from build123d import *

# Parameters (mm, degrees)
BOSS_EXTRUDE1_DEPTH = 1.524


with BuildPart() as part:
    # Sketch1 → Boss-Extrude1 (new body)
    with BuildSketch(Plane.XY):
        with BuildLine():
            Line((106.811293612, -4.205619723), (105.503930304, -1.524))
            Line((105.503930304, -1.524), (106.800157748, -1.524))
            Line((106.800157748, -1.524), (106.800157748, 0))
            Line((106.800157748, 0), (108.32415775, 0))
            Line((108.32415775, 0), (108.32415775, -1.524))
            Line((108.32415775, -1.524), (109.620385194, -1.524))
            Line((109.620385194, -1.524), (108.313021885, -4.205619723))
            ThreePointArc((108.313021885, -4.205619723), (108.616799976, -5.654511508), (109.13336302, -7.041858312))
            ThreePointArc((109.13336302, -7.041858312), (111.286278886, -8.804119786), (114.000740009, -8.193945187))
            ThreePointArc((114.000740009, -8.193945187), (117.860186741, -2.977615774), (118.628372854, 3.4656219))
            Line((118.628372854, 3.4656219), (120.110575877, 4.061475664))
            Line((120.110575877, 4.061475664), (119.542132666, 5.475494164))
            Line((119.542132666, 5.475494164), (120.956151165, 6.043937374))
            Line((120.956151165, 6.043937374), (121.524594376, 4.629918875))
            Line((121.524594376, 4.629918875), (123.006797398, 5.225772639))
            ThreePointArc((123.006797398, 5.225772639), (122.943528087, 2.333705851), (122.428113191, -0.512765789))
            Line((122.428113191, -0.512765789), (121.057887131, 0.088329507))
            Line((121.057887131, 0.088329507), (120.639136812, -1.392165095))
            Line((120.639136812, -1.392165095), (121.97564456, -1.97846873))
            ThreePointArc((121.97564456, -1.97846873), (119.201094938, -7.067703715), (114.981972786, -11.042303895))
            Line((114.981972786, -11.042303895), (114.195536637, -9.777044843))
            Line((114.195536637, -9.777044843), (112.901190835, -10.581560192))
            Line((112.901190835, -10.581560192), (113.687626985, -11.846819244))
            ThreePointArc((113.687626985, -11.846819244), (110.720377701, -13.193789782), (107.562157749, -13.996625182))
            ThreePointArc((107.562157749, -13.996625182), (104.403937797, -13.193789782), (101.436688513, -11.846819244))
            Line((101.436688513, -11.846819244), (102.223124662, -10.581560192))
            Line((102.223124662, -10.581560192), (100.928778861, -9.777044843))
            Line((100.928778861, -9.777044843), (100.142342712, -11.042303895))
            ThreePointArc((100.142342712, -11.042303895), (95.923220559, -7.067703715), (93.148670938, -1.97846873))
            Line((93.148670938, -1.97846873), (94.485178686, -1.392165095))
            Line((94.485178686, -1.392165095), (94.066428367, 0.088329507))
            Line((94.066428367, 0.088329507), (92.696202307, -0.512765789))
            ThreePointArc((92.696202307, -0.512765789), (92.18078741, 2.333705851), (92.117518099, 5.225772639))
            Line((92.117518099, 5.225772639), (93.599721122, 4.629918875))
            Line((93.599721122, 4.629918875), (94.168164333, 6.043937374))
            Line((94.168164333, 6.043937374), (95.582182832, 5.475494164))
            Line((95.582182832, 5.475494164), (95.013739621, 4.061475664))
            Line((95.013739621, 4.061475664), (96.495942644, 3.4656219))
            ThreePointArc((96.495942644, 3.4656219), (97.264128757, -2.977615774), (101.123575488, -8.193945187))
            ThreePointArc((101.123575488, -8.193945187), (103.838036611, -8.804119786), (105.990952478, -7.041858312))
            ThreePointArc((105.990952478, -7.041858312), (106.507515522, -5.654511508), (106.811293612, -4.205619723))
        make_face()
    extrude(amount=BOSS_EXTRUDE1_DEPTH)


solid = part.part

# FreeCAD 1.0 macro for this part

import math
import FreeCAD as App
import Part
import Sketcher

V = App.Vector
Q = App.Units.Quantity

doc = App.newDocument("Part")
body = doc.addObject("PartDesign::Body", "Body")

# Sketch on XY plane
sketch1 = body.newObject("Sketcher::SketchObject", "Sketch")
sketch1.AttachmentSupport = (doc.getObject("XY_Plane"), [""])
sketch1.MapMode = "FlatFace"
sketch1.addGeometry(Part.LineSegment(V(105.5, -1.5, 0), V(106.8, -4.2, 0)), False)
sketch1.addGeometry(Part.ArcOfCircle(Part.Circle(V(97, -2.9, 0), V(0, 0, 1), 9.9), math.radians(-24.71), math.radians(-7.55)), False)
sketch1.addGeometry(Part.ArcOfCircle(Part.Circle(V(103.1, -5.7, 0), V(0, 0, 1), 3.2), math.radians(-129), math.radians(-25)), False)
sketch1.addGeometry(Part.ArcOfCircle(Part.Circle(V(109, 1.7, 0), V(0, 0, 1), 12.7), math.radians(172), math.radians(231)), False)
sketch1.addGeometry(Part.LineSegment(V(96.5, 3.5, 0), V(95, 4.1, 0)), False)
sketch1.addGeometry(Part.LineSegment(V(95, 4.1, 0), V(95.6, 5.5, 0)), False)
sketch1.addGeometry(Part.LineSegment(V(95.6, 5.5, 0), V(94.2, 6, 0)), False)
sketch1.addGeometry(Part.LineSegment(V(94.2, 6, 0), V(93.6, 4.6, 0)), False)
sketch1.addGeometry(Part.LineSegment(V(93.6, 4.6, 0), V(92.1, 5.2, 0)), False)
sketch1.addGeometry(Part.ArcOfCircle(Part.Circle(V(110.5, 4.2, 0), V(0, 0, 1), 18.4), math.radians(176.75), math.radians(194.77)), False)
sketch1.addGeometry(Part.LineSegment(V(92.7, -0.5, 0), V(94.1, 0.1, 0)), False)
sketch1.addGeometry(Part.LineSegment(V(94.1, 0.1, 0), V(94.5, -1.4, 0)), False)
sketch1.addGeometry(Part.LineSegment(V(94.5, -1.4, 0), V(93.1, -2, 0)), False)
sketch1.addGeometry(Part.ArcOfCircle(Part.Circle(V(110.5, 4.2, 0), V(0, 0, 1), 18.4), math.radians(-160), math.radians(-124)), False)
sketch1.addGeometry(Part.LineSegment(V(100.1, -11, 0), V(100.9, -9.8, 0)), False)
sketch1.addGeometry(Part.LineSegment(V(100.9, -9.8, 0), V(102.2, -10.6, 0)), False)
sketch1.addGeometry(Part.LineSegment(V(102.2, -10.6, 0), V(101.4, -11.8, 0)), False)
sketch1.addGeometry(Part.ArcOfCircle(Part.Circle(V(110.5, 4.2, 0), V(0, 0, 1), 18.4), math.radians(-119), math.radians(-99)), False)
sketch1.addGeometry(Part.ArcOfCircle(Part.Circle(V(104.6, 4.2, 0), V(0, 0, 1), 18.4), math.radians(-81), math.radians(-61)), False)
sketch1.addGeometry(Part.LineSegment(V(113.7, -11.8, 0), V(112.9, -10.6, 0)), False)
sketch1.addGeometry(Part.LineSegment(V(112.9, -10.6, 0), V(114.2, -9.8, 0)), False)
sketch1.addGeometry(Part.LineSegment(V(114.2, -9.8, 0), V(115, -11, 0)), False)
sketch1.addGeometry(Part.ArcOfCircle(Part.Circle(V(104.6, 4.2, 0), V(0, 0, 1), 18.4), math.radians(-56), math.radians(-20)), False)
sketch1.addGeometry(Part.LineSegment(V(122, -2, 0), V(120.6, -1.4, 0)), False)
sketch1.addGeometry(Part.LineSegment(V(120.6, -1.4, 0), V(121.1, 0.1, 0)), False)
sketch1.addGeometry(Part.LineSegment(V(121.1, 0.1, 0), V(122.4, -0.5, 0)), False)
sketch1.addGeometry(Part.ArcOfCircle(Part.Circle(V(104.6, 4.2, 0), V(0, 0, 1), 18.4), math.radians(-14.77), math.radians(3.25)), False)
sketch1.addGeometry(Part.LineSegment(V(123, 5.2, 0), V(121.5, 4.6, 0)), False)
sketch1.addGeometry(Part.LineSegment(V(121.5, 4.6, 0), V(121, 6, 0)), False)
sketch1.addGeometry(Part.LineSegment(V(121, 6, 0), V(119.5, 5.5, 0)), False)
sketch1.addGeometry(Part.LineSegment(V(119.5, 5.5, 0), V(120.1, 4.1, 0)), False)
sketch1.addGeometry(Part.LineSegment(V(120.1, 4.1, 0), V(118.6, 3.5, 0)), False)
sketch1.addGeometry(Part.ArcOfCircle(Part.Circle(V(106.1, 1.7, 0), V(0, 0, 1), 12.7), math.radians(-51), math.radians(8)), False)
sketch1.addGeometry(Part.ArcOfCircle(Part.Circle(V(112, -5.7, 0), V(0, 0, 1), 3.2), math.radians(-155), math.radians(-51)), False)
sketch1.addGeometry(Part.ArcOfCircle(Part.Circle(V(118.1, -2.9, 0), V(0, 0, 1), 9.9), math.radians(-172.45), math.radians(-155.29)), False)
sketch1.addGeometry(Part.LineSegment(V(108.3, -4.2, 0), V(109.6, -1.5, 0)), False)
sketch1.addGeometry(Part.LineSegment(V(109.6, -1.5, 0), V(108.3, -1.5, 0)), False)
sketch1.addGeometry(Part.LineSegment(V(108.3, -1.5, 0), V(108.3, 0, 0)), False)
sketch1.addGeometry(Part.LineSegment(V(108.3, 0, 0), V(106.8, 0, 0)), False)
sketch1.addGeometry(Part.LineSegment(V(106.8, 0, 0), V(106.8, -1.5, 0)), False)
sketch1.addGeometry(Part.LineSegment(V(106.8, -1.5, 0), V(105.5, -1.5, 0)), False)
sketch1.addConstraint(Sketcher.Constraint("Coincident", 0, 2, 1, 2))
sketch1.addConstraint(Sketcher.Constraint("Tangent", 1, 1, 2, 2))
sketch1.addConstraint(Sketcher.Constraint("Tangent", 2, 1, 3, 2))
sketch1.addConstraint(Sketcher.Constraint("Coincident", 3, 1, 4, 1))
sketch1.addConstraint(Sketcher.Constraint("Coincident", 4, 2, 5, 1))
sketch1.addConstraint(Sketcher.Constraint("Coincident", 5, 2, 6, 1))
sketch1.addConstraint(Sketcher.Constraint("Coincident", 6, 2, 7, 1))
sketch1.addConstraint(Sketcher.Constraint("Coincident", 7, 2, 8, 1))
sketch1.addConstraint(Sketcher.Constraint("Coincident", 8, 2, 9, 1))
sketch1.addConstraint(Sketcher.Constraint("Coincident", 9, 2, 10, 1))
sketch1.addConstraint(Sketcher.Constraint("Coincident", 10, 2, 11, 1))
sketch1.addConstraint(Sketcher.Constraint("Coincident", 11, 2, 12, 1))
sketch1.addConstraint(Sketcher.Constraint("Coincident", 12, 2, 13, 1))
sketch1.addConstraint(Sketcher.Constraint("Coincident", 13, 2, 14, 1))
sketch1.addConstraint(Sketcher.Constraint("Coincident", 14, 2, 15, 1))
sketch1.addConstraint(Sketcher.Constraint("Coincident", 15, 2, 16, 1))
sketch1.addConstraint(Sketcher.Constraint("Coincident", 16, 2, 17, 1))
sketch1.addConstraint(Sketcher.Constraint("Coincident", 17, 2, 18, 1))
sketch1.addConstraint(Sketcher.Constraint("Coincident", 18, 2, 19, 1))
sketch1.addConstraint(Sketcher.Constraint("Coincident", 19, 2, 20, 1))
sketch1.addConstraint(Sketcher.Constraint("Coincident", 20, 2, 21, 1))
sketch1.addConstraint(Sketcher.Constraint("Coincident", 21, 2, 22, 1))
sketch1.addConstraint(Sketcher.Constraint("Coincident", 22, 2, 23, 1))
sketch1.addConstraint(Sketcher.Constraint("Coincident", 23, 2, 24, 1))
sketch1.addConstraint(Sketcher.Constraint("Coincident", 24, 2, 25, 1))
sketch1.addConstraint(Sketcher.Constraint("Coincident", 25, 2, 26, 1))
sketch1.addConstraint(Sketcher.Constraint("Coincident", 26, 2, 27, 1))
sketch1.addConstraint(Sketcher.Constraint("Coincident", 27, 2, 28, 1))
sketch1.addConstraint(Sketcher.Constraint("Coincident", 28, 2, 29, 1))
sketch1.addConstraint(Sketcher.Constraint("Coincident", 29, 2, 30, 1))
sketch1.addConstraint(Sketcher.Constraint("Coincident", 30, 2, 31, 1))
sketch1.addConstraint(Sketcher.Constraint("Coincident", 31, 2, 32, 2))
sketch1.addConstraint(Sketcher.Constraint("Tangent", 32, 1, 33, 2))
sketch1.addConstraint(Sketcher.Constraint("Tangent", 33, 1, 34, 2))
sketch1.addConstraint(Sketcher.Constraint("Coincident", 34, 1, 35, 1))
sketch1.addConstraint(Sketcher.Constraint("Coincident", 35, 2, 36, 1))
sketch1.addConstraint(Sketcher.Constraint("Coincident", 36, 2, 37, 1))
sketch1.addConstraint(Sketcher.Constraint("Coincident", 37, 2, 38, 1))
sketch1.addConstraint(Sketcher.Constraint("Coincident", 38, 2, 39, 1))
sketch1.addConstraint(Sketcher.Constraint("Coincident", 39, 2, 40, 1))
sketch1.addConstraint(Sketcher.Constraint("Coincident", 40, 2, 0, 1))
sketch1.addConstraint(Sketcher.Constraint("Horizontal", 36))
sketch1.addConstraint(Sketcher.Constraint("Vertical", 37))
sketch1.addConstraint(Sketcher.Constraint("Horizontal", 38))
sketch1.addConstraint(Sketcher.Constraint("Vertical", 39))
sketch1.addConstraint(Sketcher.Constraint("Horizontal", 40))
sketch1.addConstraint(Sketcher.Constraint("Coincident", 13, 3, 9, 3))
sketch1.addConstraint(Sketcher.Constraint("Coincident", 17, 3, 9, 3))
sketch1.addConstraint(Sketcher.Constraint("Coincident", 22, 3, 18, 3))
sketch1.addConstraint(Sketcher.Constraint("Coincident", 26, 3, 18, 3))
sketch1.addConstraint(Sketcher.Constraint("Equal", 9, 13))
sketch1.addConstraint(Sketcher.Constraint("Equal", 13, 17))
sketch1.addConstraint(Sketcher.Constraint("Equal", 17, 18))
sketch1.addConstraint(Sketcher.Constraint("Equal", 18, 22))
sketch1.addConstraint(Sketcher.Constraint("Equal", 22, 26))
sketch1.addConstraint(Sketcher.Constraint("Equal", 3, 32))
sketch1.addConstraint(Sketcher.Constraint("Equal", 2, 33))
sketch1.addConstraint(Sketcher.Constraint("Equal", 1, 34))
sketch1.addConstraint(Sketcher.Constraint("PointOnObject", 37, 2, -1))
sketch1.addConstraint(Sketcher.Constraint("Perpendicular", 4, 5))
sketch1.addConstraint(Sketcher.Constraint("Perpendicular", 5, 6))
sketch1.addConstraint(Sketcher.Constraint("Perpendicular", 6, 7))
sketch1.addConstraint(Sketcher.Constraint("Perpendicular", 7, 8))
sketch1.addConstraint(Sketcher.Constraint("Parallel", 10, 12))
sketch1.addConstraint(Sketcher.Constraint("Perpendicular", 14, 15))
sketch1.addConstraint(Sketcher.Constraint("Perpendicular", 15, 16))
sketch1.addConstraint(Sketcher.Constraint("Perpendicular", 19, 20))
sketch1.addConstraint(Sketcher.Constraint("Perpendicular", 20, 21))
sketch1.addConstraint(Sketcher.Constraint("Parallel", 23, 25))
sketch1.addConstraint(Sketcher.Constraint("Perpendicular", 27, 28))
sketch1.addConstraint(Sketcher.Constraint("Perpendicular", 28, 29))
sketch1.addConstraint(Sketcher.Constraint("Perpendicular", 29, 30))
sketch1.addConstraint(Sketcher.Constraint("Perpendicular", 30, 31))
sketch1.addConstraint(Sketcher.Constraint("Horizontal", 17, 3, 18, 3))
sketch1.addConstraint(Sketcher.Constraint("Horizontal", 3, 3, 32, 3))
sketch1.addConstraint(Sketcher.Constraint("Horizontal", 2, 3, 33, 3))
sketch1.addConstraint(Sketcher.Constraint("Horizontal", 1, 3, 34, 3))
sketch1.addConstraint(Sketcher.Constraint("Horizontal", 16, 2, 18, 2))
sketch1.addConstraint(Sketcher.Constraint("Horizontal", 15, 2, 19, 2))
sketch1.addConstraint(Sketcher.Constraint("Horizontal", 14, 2, 20, 2))
sketch1.addConstraint(Sketcher.Constraint("Horizontal", 13, 2, 21, 2))
sketch1.addConstraint(Sketcher.Constraint("Horizontal", 12, 2, 22, 2))
sketch1.addConstraint(Sketcher.Constraint("Horizontal", 11, 2, 23, 2))
sketch1.addConstraint(Sketcher.Constraint("Horizontal", 10, 2, 24, 2))
sketch1.addConstraint(Sketcher.Constraint("Horizontal", 9, 2, 25, 2))
sketch1.addConstraint(Sketcher.Constraint("Horizontal", 8, 2, 26, 2))
sketch1.addConstraint(Sketcher.Constraint("Horizontal", 7, 2, 27, 2))
sketch1.addConstraint(Sketcher.Constraint("Horizontal", 6, 2, 28, 2))
sketch1.addConstraint(Sketcher.Constraint("Horizontal", 5, 2, 29, 2))
sketch1.addConstraint(Sketcher.Constraint("Horizontal", 4, 2, 30, 2))
sketch1.addConstraint(Sketcher.Constraint("Horizontal", 3, 1, 31, 2))
sketch1.addConstraint(Sketcher.Constraint("Horizontal", 0, 2, 34, 1))
sketch1.addConstraint(Sketcher.Constraint("Horizontal", 36, 2, 39, 2))
sketch1.addConstraint(Sketcher.Constraint("Equal", 36, 40))
sketch1.addConstraint(Sketcher.Constraint("Equal", 38, 37))
sketch1.addConstraint(Sketcher.Constraint("Equal", 5, 6))
sketch1.addConstraint(Sketcher.Constraint("Equal", 6, 7))
sketch1.addConstraint(Sketcher.Constraint("Equal", 4, 8))
sketch1.addConstraint(Sketcher.Constraint("Equal", 7, 15))
sketch1.addConstraint(Sketcher.Constraint("Equal", 14, 16))
sketch1.addConstraint(Sketcher.Constraint("Equal", 12, 23))
sketch1.addConstraint(Sketcher.Constraint("Equal", 8, 27))
sketch1.addConstraint(Sketcher.Constraint("Equal", 0, 35))
sketch1.addConstraint(Sketcher.Constraint("Radius", 2, Q("0.125 in")))
sketch1.addConstraint(Sketcher.Constraint("DistanceX", 38, 2, 38, 1, Q("0.06 in")))
sketch1.addConstraint(Sketcher.Constraint("Distance", 5, Q("0.06 in")))
sketch1.addConstraint(Sketcher.Constraint("Radius", 9, 18.414041))
sketch1.addConstraint(Sketcher.Constraint("Radius", 1, 9.893915))
sketch1.addConstraint(Sketcher.Constraint("Radius", 3, 12.660095))
sketch1.addConstraint(Sketcher.Constraint("DistanceY", 11, 2, 9, 2, 0.879399))
sketch1.addConstraint(Sketcher.Constraint("DistanceY", 12, 2, 10, 2, 2.066798))
sketch1.addConstraint(Sketcher.Constraint("DistanceX", 12, 2, 1, 3, 3.854499))
sketch1.addConstraint(Sketcher.Constraint("DistanceY", 14, 2, 2, 1, 1.5831))
sketch1.addConstraint(Sketcher.Constraint("DistanceY", 15, 2, 1, 1, 3.539702))
sketch1.addConstraint(Sketcher.Constraint("DistanceY", 18, 2, 0, 2, 7.6412))
sketch1.addConstraint(Sketcher.Constraint("DistanceX", 20, 2, 23, 2, 6.4436))
sketch1.addConstraint(Sketcher.Constraint("DistanceX", 3, 3, 35, 2, 0.589099))
sketch1.addConstraint(Sketcher.Constraint("DistanceX", 36, 2, 36, 1, 1.296227))
sketch1.addConstraint(Sketcher.Constraint("DistanceX", -1, 1, 1, 3, 97.00317))
sketch1.addConstraint(Sketcher.Constraint("DistanceY", 2, 3, -1, 1, 5.714488))
sketch1.addConstraint(Sketcher.Constraint("DistanceY", -1, 1, 3, 3, 1.692719))
sketch1.addConstraint(Sketcher.Constraint("DistanceX", -1, 1, 9, 3, 110.50191))
sketch1.addConstraint(Sketcher.Constraint("DistanceY", -1, 1, 9, 3, 4.18124))
sketch1.addConstraint(Sketcher.Constraint("DistanceX", -1, 1, 32, 3, 106.09303))
sketch1.addConstraint(Sketcher.Constraint("DistanceY", -1, 1, 3, 1, 3.465622))
sketch1.addConstraint(Sketcher.Constraint("DistanceX", -1, 1, 4, 2, 95.01374))
sketch1.addConstraint(Sketcher.Constraint("DistanceX", -1, 1, 10, 2, 94.066428))
pad1 = body.newObject("PartDesign::Pad", "Pad")
pad1.Profile = sketch1
pad1.Length = Q("0.06 in")

doc.recompute()
